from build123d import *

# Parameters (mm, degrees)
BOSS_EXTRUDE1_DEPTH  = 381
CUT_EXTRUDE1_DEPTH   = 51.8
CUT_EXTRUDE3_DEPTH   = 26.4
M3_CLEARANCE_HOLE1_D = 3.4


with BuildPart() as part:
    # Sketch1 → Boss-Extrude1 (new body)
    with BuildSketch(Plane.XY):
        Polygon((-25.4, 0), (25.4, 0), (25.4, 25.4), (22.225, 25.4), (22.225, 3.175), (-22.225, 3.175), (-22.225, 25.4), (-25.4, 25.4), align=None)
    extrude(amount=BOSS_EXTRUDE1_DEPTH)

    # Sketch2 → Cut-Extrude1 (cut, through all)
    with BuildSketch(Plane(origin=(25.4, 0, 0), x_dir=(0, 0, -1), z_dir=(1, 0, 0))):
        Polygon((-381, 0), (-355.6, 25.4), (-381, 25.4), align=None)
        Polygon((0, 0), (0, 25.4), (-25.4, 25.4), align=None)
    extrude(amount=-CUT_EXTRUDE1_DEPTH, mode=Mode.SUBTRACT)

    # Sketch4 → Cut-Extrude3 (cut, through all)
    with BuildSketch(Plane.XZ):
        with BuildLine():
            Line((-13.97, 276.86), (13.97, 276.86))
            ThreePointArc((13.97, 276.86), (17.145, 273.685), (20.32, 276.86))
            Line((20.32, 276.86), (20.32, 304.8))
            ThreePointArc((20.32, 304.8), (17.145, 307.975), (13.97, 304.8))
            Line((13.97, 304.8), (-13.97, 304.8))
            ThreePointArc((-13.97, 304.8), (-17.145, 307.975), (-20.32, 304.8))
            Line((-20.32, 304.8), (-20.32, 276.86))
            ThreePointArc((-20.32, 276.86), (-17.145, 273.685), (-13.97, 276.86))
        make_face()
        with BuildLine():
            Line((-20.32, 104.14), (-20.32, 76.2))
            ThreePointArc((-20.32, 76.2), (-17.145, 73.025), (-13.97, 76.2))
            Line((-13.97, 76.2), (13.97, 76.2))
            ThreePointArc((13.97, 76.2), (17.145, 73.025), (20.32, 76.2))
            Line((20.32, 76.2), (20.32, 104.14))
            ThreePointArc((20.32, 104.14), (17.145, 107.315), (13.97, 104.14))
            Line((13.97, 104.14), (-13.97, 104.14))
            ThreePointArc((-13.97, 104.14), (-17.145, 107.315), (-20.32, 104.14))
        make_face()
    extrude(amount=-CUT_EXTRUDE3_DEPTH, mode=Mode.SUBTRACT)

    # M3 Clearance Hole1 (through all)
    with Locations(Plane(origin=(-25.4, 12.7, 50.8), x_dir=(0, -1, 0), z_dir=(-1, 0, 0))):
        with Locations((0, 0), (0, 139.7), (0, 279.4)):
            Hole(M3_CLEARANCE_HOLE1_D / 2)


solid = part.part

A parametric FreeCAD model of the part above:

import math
import FreeCAD as App
import Part
import Sketcher
from FreeCAD import Vector
Q = App.Units.Quantity

doc = App.newDocument("Part")
body = doc.addObject("PartDesign::Body", "Body")

# Sketch on XY plane
sketch1 = body.newObject("Sketcher::SketchObject", "Sketch")
sketch1.AttachmentSupport = (doc.getObject("XY_Plane"), [""])
sketch1.MapMode = "FlatFace"
sketch1.addGeometry([
    Part.LineSegment(Vector(-25.4, 0, 0), Vector(25.4, 0, 0)),  # 0
    Part.LineSegment(Vector(25.4, 0, 0), Vector(25.4, 25.4, 0)),  # 1
    Part.LineSegment(Vector(25.4, 25.4, 0), Vector(22.225, 25.4, 0)),  # 2
    Part.LineSegment(Vector(22.225, 25.4, 0), Vector(22.225, 3.175, 0)),  # 3
    Part.LineSegment(Vector(22.225, 3.175, 0), Vector(-22.225, 3.175, 0)),  # 4
    Part.LineSegment(Vector(-22.225, 3.175, 0), Vector(-22.225, 25.4, 0)),  # 5
    Part.LineSegment(Vector(-22.225, 25.4, 0), Vector(-25.4, 25.4, 0)),  # 6
    Part.LineSegment(Vector(-25.4, 25.4, 0), Vector(-25.4, 0, 0)),  # 7
], False)
sketch1.addConstraint([
    Sketcher.Constraint("Coincident", 0, 2, 1, 1),
    Sketcher.Constraint("Coincident", 1, 2, 2, 1),
    Sketcher.Constraint("Coincident", 2, 2, 3, 1),
    Sketcher.Constraint("Coincident", 3, 2, 4, 1),
    Sketcher.Constraint("Coincident", 4, 2, 5, 1),
    Sketcher.Constraint("Coincident", 5, 2, 6, 1),
    Sketcher.Constraint("Coincident", 6, 2, 7, 1),
    Sketcher.Constraint("Coincident", 7, 2, 0, 1),
    Sketcher.Constraint("Horizontal", 0),
    Sketcher.Constraint("Vertical", 1),
    Sketcher.Constraint("Horizontal", 2),
    Sketcher.Constraint("Vertical", 3),
    Sketcher.Constraint("Horizontal", 4),
    Sketcher.Constraint("Vertical", 5),
    Sketcher.Constraint("Horizontal", 6),
    Sketcher.Constraint("Vertical", 7),
    Sketcher.Constraint("Symmetric", 0, 2, 7, 2, -1, 1),
    Sketcher.Constraint("Symmetric", 2, 2, 5, 2, -2),
    Sketcher.Constraint("DistanceX", 0, 1, 0, 2, Q("2 in")),
    Sketcher.Constraint("DistanceY", 1, 1, 1, 2, Q("1 in")),
    Sketcher.Constraint("DistanceX", 4, 2, 4, 1, Q("1.75 in")),
    Sketcher.Constraint("DistanceY", 3, 2, 3, 1, Q("0.875 in")),
])
pad1 = body.newObject("PartDesign::Pad", "Pad")
pad1.Profile = sketch1
pad1.Length = Q("15 in")

# Sketch on YZ plane
sketch2 = body.newObject("Sketcher::SketchObject", "Sketch001")
sketch2.AttachmentSupport = (doc.getObject("YZ_Plane"), [""])
sketch2.MapMode = "FlatFace"
sketch2.AttachmentOffset = App.Placement(Vector(0, 0, 1 * 25.4), App.Rotation())
sketch2.addGeometry([
    Part.LineSegment(Vector(0, 381, 0), Vector(25.4, 355.6, 0)),  # 0
    Part.LineSegment(Vector(25.4, 355.6, 0), Vector(25.4, 381, 0)),  # 1
    Part.LineSegment(Vector(25.4, 381, 0), Vector(0, 381, 0)),  # 2
    Part.LineSegment(Vector(0, 0, 0), Vector(25.4, 0, 0)),  # 3
    Part.LineSegment(Vector(25.4, 0, 0), Vector(25.4, 25.4, 0)),  # 4
    Part.LineSegment(Vector(25.4, 25.4, 0), Vector(0, 0, 0)),  # 5
], False)
sketch2.addConstraint([
    Sketcher.Constraint("Coincident", 0, 2, 1, 1),
    Sketcher.Constraint("Coincident", 1, 2, 2, 1),
    Sketcher.Constraint("Coincident", 2, 2, 0, 1),
    Sketcher.Constraint("Coincident", 3, 2, 4, 1),
    Sketcher.Constraint("Coincident", 4, 2, 5, 1),
    Sketcher.Constraint("Coincident", 5, 2, 3, 1),
    Sketcher.Constraint("Vertical", 1),
    Sketcher.Constraint("Horizontal", 2),
    Sketcher.Constraint("Horizontal", 3),
    Sketcher.Constraint("Vertical", 4),
    Sketcher.Constraint("Coincident", 5, 2, -1, 1),
    Sketcher.Constraint("PointOnObject", 2, 2, -2),
    Sketcher.Constraint("Perpendicular", 0, 5),
    Sketcher.Constraint("Vertical", 1, 2, 3, 2),
    Sketcher.Constraint("Equal", 3, 1),
    Sketcher.Constraint("DistanceX", 2, 2, 2, 1, Q("1 in")),
    Sketcher.Constraint("DistanceY", -1, 1, 0, 2, Q("14 in")),
])
pocket1 = body.newObject("PartDesign::Pocket", "Pocket")
pocket1.Profile = sketch2
pocket1.Type = "ThroughAll"

# Sketch on XZ plane
sketch3 = body.newObject("Sketcher::SketchObject", "Sketch002")
sketch3.AttachmentSupport = (doc.getObject("XZ_Plane"), [""])
sketch3.MapMode = "FlatFace"
sketch3.addGeometry([
    Part.LineSegment(Vector(-13.97, 276.86, 0), Vector(13.97, 276.86, 0)),  # 0
    Part.ArcOfCircle(Part.Circle(Vector(17.145, 276.86, 0), Vector(0, 0, 1), 3.175), math.radians(180), math.radians(360)),  # 1
    Part.LineSegment(Vector(20.32, 276.86, 0), Vector(20.32, 304.8, 0)),  # 2
    Part.ArcOfCircle(Part.Circle(Vector(17.145, 304.8, 0), Vector(0, 0, 1), 3.175), math.radians(0), math.radians(180)),  # 3
    Part.LineSegment(Vector(13.97, 304.8, 0), Vector(-13.97, 304.8, 0)),  # 4
    Part.ArcOfCircle(Part.Circle(Vector(-17.145, 304.8, 0), Vector(0, 0, 1), 3.175), math.radians(0), math.radians(180)),  # 5
    Part.LineSegment(Vector(-20.32, 304.8, 0), Vector(-20.32, 276.86, 0)),  # 6
    Part.ArcOfCircle(Part.Circle(Vector(-17.145, 276.86, 0), Vector(0, 0, 1), 3.175), math.radians(180), math.radians(360)),  # 7
    Part.LineSegment(Vector(-20.32, 104.14, 0), Vector(-20.32, 76.2, 0)),  # 8
    Part.ArcOfCircle(Part.Circle(Vector(-17.145, 76.2, 0), Vector(0, 0, 1), 3.175), math.radians(180), math.radians(360)),  # 9
    Part.LineSegment(Vector(-13.97, 76.2, 0), Vector(13.97, 76.2, 0)),  # 10
    Part.ArcOfCircle(Part.Circle(Vector(17.145, 76.2, 0), Vector(0, 0, 1), 3.175), math.radians(180), math.radians(360)),  # 11
    Part.LineSegment(Vector(20.32, 76.2, 0), Vector(20.32, 104.14, 0)),  # 12
    Part.ArcOfCircle(Part.Circle(Vector(17.145, 104.14, 0), Vector(0, 0, 1), 3.175), math.radians(0), math.radians(180)),  # 13
    Part.LineSegment(Vector(13.97, 104.14, 0), Vector(-13.97, 104.14, 0)),  # 14
    Part.ArcOfCircle(Part.Circle(Vector(-17.145, 104.14, 0), Vector(0, 0, 1), 3.175), math.radians(0), math.radians(180)),  # 15
], False)
sketch3.addConstraint([
    Sketcher.Constraint("Coincident", 0, 2, 1, 1),
    Sketcher.Constraint("Tangent", 1, 2, 2, 1),
    Sketcher.Constraint("Tangent", 2, 2, 3, 1),
    Sketcher.Constraint("Coincident", 3, 2, 4, 1),
    Sketcher.Constraint("Coincident", 4, 2, 5, 1),
    Sketcher.Constraint("Tangent", 5, 2, 6, 1),
    Sketcher.Constraint("Tangent", 6, 2, 7, 1),
    Sketcher.Constraint("Coincident", 7, 2, 0, 1),
    Sketcher.Constraint("Tangent", 8, 2, 9, 1),
    Sketcher.Constraint("Coincident", 9, 2, 10, 1),
    Sketcher.Constraint("Coincident", 10, 2, 11, 1),
    Sketcher.Constraint("Tangent", 11, 2, 12, 1),
    Sketcher.Constraint("Tangent", 12, 2, 13, 1),
    Sketcher.Constraint("Coincident", 13, 2, 14, 1),
    Sketcher.Constraint("Coincident", 14, 2, 15, 1),
    Sketcher.Constraint("Tangent", 15, 2, 8, 1),
    Sketcher.Constraint("Horizontal", 0),
    Sketcher.Constraint("Vertical", 2),
    Sketcher.Constraint("Horizontal", 4),
    Sketcher.Constraint("Vertical", 6),
    Sketcher.Constraint("Vertical", 8),
    Sketcher.Constraint("Horizontal", 10),
    Sketcher.Constraint("Vertical", 12),
    Sketcher.Constraint("Horizontal", 14),
    Sketcher.Constraint("Equal", 1, 3),
    Sketcher.Constraint("Equal", 3, 5),
    Sketcher.Constraint("Equal", 5, 7),
    Sketcher.Constraint("Equal", 7, 9),
    Sketcher.Constraint("Equal", 9, 11),
    Sketcher.Constraint("Equal", 11, 13),
    Sketcher.Constraint("Equal", 13, 15),
    Sketcher.Constraint("Symmetric", 3, 3, 5, 3, -2),
    Sketcher.Constraint("Symmetric", 9, 3, 11, 3, -2),
    Sketcher.Constraint("Horizontal", 1, 3, 7, 3),
    Sketcher.Constraint("Horizontal", 13, 3, 15, 3),
    Sketcher.Constraint("Horizontal", 7, 3, 0, 2),
    Sketcher.Constraint("Horizontal", 2, 2, 3, 2),
    Sketcher.Constraint("Horizontal", 8, 2, 9, 2),
    Sketcher.Constraint("Horizontal", 12, 2, 13, 2),
    Sketcher.Constraint("Vertical", 7, 3, 9, 3),
    Sketcher.Constraint("Equal", 14, 2),
    Sketcher.Constraint("Equal", 6, 8),
    Sketcher.Constraint("DistanceX", 0, 1, 0, 2, Q("1.1 in")),
    Sketcher.Constraint("DistanceY", -1, 1, 3, 3, Q("12 in")),
    Sketcher.Constraint("DistanceY", -1, 1, 9, 3, Q("3 in")),
    Sketcher.Constraint("Radius", 1, Q("0.125 in")),
])
pocket2 = body.newObject("PartDesign::Pocket", "Pocket001")
pocket2.Profile = sketch3
pocket2.Type = "ThroughAll"

# Sketch on YZ plane
sketch4 = body.newObject("Sketcher::SketchObject", "Sketch003")
sketch4.AttachmentSupport = (doc.getObject("YZ_Plane"), [""])
sketch4.MapMode = "FlatFace"
sketch4.AttachmentOffset = App.Placement(Vector(0, 0, -1 * 25.4), App.Rotation())
sketch4.addGeometry([
    Part.Circle(Vector(12.7, 50.8, 0), Vector(0, 0, 1), 1.7),
    Part.Circle(Vector(12.7, 190.5, 0), Vector(0, 0, 1), 1.7),
    Part.Circle(Vector(12.7, 330.2, 0), Vector(0, 0, 1), 1.7),
], False)
sketch4.addConstraint([
    Sketcher.Constraint("Equal", 0, 1),
    Sketcher.Constraint("Equal", 1, 2),
    Sketcher.Constraint("Vertical", 0, 3, 1, 3),
    Sketcher.Constraint("Vertical", 1, 3, 2, 3),
    Sketcher.Constraint("DistanceY", -1, 1, 0, 3, Q("2 in")),
    Sketcher.Constraint("DistanceY", -1, 1, 2, 3, Q("13 in")),
    Sketcher.Constraint("DistanceX", -1, 1, 0, 3, Q("0.5 in")),
    Sketcher.Constraint("DistanceY", -1, 1, 1, 3, Q("7.5 in")),
    Sketcher.Constraint("Diameter", 0, Q("3.4 mm")),
])
doc.recompute()
hole = body.newObject("PartDesign::Hole", "Hole")
hole.Profile = sketch4
hole.ThreadType = "None"
hole.Diameter = 3.4
hole.DepthType = "ThroughAll"
hole.Reversed = True

doc.recompute()
